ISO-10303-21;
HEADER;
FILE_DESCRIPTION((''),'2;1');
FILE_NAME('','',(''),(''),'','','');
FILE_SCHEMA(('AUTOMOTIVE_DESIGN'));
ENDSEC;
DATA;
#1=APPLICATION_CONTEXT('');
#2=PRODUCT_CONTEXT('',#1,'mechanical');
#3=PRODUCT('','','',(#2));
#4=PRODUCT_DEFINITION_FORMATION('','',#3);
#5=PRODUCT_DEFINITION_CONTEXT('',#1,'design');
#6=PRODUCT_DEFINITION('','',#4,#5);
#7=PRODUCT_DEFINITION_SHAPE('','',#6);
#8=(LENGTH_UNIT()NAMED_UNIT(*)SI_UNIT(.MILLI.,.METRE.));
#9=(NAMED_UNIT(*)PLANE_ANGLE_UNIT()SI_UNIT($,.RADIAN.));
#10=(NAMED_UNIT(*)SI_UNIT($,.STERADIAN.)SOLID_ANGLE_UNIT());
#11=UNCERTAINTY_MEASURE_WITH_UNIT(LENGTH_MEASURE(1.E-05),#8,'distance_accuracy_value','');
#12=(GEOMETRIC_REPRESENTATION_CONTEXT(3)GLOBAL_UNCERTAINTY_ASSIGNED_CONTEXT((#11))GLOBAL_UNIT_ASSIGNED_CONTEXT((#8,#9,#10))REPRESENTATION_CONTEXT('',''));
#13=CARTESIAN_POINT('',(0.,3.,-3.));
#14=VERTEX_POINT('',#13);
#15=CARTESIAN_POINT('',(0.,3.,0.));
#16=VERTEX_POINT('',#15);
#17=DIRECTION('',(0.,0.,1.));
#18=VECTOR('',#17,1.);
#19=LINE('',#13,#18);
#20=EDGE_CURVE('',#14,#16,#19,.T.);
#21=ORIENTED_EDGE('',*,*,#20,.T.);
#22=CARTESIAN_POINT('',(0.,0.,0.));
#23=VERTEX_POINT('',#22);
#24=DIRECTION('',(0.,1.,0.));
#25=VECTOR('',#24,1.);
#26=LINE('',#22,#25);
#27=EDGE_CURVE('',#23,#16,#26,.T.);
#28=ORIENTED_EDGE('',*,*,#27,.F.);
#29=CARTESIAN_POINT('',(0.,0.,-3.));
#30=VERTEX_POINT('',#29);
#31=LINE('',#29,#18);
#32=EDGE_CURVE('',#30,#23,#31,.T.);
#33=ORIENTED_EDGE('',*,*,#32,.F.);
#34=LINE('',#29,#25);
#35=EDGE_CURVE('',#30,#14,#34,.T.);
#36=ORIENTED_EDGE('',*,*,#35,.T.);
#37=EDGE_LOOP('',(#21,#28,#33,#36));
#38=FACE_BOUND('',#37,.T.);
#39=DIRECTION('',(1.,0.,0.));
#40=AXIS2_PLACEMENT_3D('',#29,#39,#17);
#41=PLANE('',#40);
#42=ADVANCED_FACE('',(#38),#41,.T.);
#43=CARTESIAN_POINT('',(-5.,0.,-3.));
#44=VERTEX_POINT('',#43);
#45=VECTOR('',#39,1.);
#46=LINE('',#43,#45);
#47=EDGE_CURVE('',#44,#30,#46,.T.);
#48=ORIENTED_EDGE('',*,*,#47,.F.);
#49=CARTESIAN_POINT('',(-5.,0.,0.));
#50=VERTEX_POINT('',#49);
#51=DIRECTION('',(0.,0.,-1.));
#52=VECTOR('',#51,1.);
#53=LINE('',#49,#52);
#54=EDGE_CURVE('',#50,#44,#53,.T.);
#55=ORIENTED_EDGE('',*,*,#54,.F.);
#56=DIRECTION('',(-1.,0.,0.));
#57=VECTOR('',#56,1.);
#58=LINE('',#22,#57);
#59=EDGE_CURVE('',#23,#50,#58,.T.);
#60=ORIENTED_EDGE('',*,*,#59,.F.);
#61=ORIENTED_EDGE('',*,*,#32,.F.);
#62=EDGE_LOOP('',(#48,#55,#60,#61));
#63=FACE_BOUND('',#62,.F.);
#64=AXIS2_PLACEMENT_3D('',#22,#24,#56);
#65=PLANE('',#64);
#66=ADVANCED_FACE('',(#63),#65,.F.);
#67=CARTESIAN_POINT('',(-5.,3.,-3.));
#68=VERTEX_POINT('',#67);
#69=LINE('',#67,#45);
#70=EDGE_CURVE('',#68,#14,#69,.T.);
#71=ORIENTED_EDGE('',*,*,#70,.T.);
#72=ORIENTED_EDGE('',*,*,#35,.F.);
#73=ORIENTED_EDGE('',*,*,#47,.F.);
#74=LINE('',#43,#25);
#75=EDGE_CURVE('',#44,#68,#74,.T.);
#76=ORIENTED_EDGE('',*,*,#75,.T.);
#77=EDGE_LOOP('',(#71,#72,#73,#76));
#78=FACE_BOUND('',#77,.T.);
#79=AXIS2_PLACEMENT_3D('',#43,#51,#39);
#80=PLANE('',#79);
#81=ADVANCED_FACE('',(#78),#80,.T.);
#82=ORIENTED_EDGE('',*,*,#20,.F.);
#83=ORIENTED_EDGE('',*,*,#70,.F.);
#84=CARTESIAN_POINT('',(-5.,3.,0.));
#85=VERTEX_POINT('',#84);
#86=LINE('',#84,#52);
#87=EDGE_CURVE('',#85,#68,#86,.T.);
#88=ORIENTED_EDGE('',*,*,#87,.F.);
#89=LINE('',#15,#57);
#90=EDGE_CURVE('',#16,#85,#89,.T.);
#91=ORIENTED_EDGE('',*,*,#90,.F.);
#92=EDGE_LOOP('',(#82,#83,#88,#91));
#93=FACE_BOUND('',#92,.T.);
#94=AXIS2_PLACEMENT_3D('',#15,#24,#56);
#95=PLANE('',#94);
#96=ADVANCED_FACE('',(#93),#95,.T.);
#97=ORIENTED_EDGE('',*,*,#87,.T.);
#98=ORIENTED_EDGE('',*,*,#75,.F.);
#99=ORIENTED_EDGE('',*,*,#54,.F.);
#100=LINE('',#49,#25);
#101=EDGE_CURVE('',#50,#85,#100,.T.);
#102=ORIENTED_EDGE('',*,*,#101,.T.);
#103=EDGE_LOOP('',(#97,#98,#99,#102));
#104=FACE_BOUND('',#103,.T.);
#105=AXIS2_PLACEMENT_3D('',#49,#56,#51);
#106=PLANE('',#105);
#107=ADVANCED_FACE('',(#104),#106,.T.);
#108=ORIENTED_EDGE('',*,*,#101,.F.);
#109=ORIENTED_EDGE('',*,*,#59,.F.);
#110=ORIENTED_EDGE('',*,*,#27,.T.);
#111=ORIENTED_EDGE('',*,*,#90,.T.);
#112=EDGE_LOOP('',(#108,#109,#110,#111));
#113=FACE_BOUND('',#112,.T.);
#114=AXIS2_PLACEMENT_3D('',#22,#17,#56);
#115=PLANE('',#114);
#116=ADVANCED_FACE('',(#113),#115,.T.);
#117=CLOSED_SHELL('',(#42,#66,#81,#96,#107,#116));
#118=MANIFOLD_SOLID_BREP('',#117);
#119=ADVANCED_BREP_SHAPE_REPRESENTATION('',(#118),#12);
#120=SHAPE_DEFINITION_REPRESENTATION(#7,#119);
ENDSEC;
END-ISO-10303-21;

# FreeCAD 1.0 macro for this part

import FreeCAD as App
import Part
import Sketcher
from FreeCAD import Vector
Q = App.Units.Quantity

doc = App.newDocument("Part")
params = doc.addObject("Spreadsheet::Sheet", "Params")
for row, (alias, value) in enumerate([
    ("sketch1_width", "5 mm"),
    ("sketch1_height", "3 mm"),
    ("pad1_length", "3 mm"),
], start=1):
    params.set(f"A{row}", alias)
    params.set(f"B{row}", "=" + value)
    params.setAlias(f"B{row}", alias)

body = doc.addObject("PartDesign::Body", "Body")

# Sketch on XZ plane
sketch1 = body.newObject("Sketcher::SketchObject", "Sketch")
sketch1.AttachmentSupport = (doc.getObject("XZ_Plane"), [""])
sketch1.MapMode = "FlatFace"
sketch1.addGeometry(Part.LineSegment(Vector(-5, 0, 0), Vector(0, 0, 0)), False)
sketch1.addGeometry(Part.LineSegment(Vector(0, 0, 0), Vector(0, -3, 0)), False)
sketch1.addGeometry(Part.LineSegment(Vector(0, -3, 0), Vector(-5, -3, 0)), False)
sketch1.addGeometry(Part.LineSegment(Vector(-5, -3, 0), Vector(-5, 0, 0)), False)
sketch1.addConstraint(Sketcher.Constraint("Coincident", 0, 2, 1, 1))
sketch1.addConstraint(Sketcher.Constraint("Coincident", 1, 2, 2, 1))
sketch1.addConstraint(Sketcher.Constraint("Coincident", 2, 2, 3, 1))
sketch1.addConstraint(Sketcher.Constraint("Coincident", 3, 2, 0, 1))
sketch1.addConstraint(Sketcher.Constraint("Horizontal", 0))
sketch1.addConstraint(Sketcher.Constraint("Vertical", 1))
sketch1.addConstraint(Sketcher.Constraint("Horizontal", 2))
sketch1.addConstraint(Sketcher.Constraint("Vertical", 3))
sketch1.addConstraint(Sketcher.Constraint("Coincident", 0, 2, -1, 1))
sketch1.addConstraint(Sketcher.Constraint("DistanceX", 0, 1, 0, 2, Q("5 mm")))
sketch1.addConstraint(Sketcher.Constraint("DistanceY", 1, 2, 1, 1, Q("3 mm")))
sketch1.setExpression("Constraints[9]", "Params.sketch1_width")
sketch1.setExpression("Constraints[10]", "Params.sketch1_height")
pad1 = body.newObject("PartDesign::Pad", "Pad")
pad1.Profile = sketch1
pad1.setExpression("Length", "Params.pad1_length")
pad1.Reversed = True

doc.recompute()
